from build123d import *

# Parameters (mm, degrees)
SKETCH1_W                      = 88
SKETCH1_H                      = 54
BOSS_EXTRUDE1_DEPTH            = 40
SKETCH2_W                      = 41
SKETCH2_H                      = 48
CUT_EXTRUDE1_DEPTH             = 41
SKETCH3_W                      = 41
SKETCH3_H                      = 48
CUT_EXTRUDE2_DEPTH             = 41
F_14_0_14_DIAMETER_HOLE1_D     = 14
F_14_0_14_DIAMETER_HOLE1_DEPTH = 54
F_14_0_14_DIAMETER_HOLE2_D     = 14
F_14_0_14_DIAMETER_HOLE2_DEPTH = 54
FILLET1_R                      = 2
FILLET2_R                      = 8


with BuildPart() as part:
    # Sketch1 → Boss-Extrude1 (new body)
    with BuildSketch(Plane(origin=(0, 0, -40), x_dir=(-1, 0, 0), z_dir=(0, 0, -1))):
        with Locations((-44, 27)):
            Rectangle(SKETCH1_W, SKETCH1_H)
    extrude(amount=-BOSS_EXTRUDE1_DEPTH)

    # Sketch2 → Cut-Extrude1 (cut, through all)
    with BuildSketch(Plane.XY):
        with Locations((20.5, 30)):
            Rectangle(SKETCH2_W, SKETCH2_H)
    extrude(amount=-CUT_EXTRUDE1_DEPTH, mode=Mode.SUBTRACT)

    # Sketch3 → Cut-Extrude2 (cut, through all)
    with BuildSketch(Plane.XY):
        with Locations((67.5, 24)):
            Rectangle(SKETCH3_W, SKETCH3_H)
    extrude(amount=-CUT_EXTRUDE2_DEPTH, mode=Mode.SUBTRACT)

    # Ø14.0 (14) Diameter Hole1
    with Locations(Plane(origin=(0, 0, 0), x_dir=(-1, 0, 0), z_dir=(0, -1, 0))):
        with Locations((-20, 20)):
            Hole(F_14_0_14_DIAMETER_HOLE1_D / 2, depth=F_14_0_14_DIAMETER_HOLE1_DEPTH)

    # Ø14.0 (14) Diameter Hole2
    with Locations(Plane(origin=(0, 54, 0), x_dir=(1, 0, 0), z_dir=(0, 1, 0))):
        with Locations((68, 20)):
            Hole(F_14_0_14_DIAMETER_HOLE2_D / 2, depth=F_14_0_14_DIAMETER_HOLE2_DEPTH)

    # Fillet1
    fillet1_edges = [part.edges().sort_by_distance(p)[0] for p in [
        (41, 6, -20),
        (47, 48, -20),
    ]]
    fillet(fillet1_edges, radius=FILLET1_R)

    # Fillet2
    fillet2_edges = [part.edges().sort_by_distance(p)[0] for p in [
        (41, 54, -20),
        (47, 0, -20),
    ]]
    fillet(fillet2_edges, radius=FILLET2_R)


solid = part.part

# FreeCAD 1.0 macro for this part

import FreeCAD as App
import Part
import Sketcher
Q = App.Units.Quantity


def edges_at(feature, points):
    """Names of the edges that pass closest to the given points."""
    edges = feature.Shape.Edges
    near = lambda p: min(range(len(edges)), key=lambda i: edges[i].distToShape(Part.Vertex(*p))[0])
    return sorted({f"Edge{near(p) + 1}" for p in points})

doc = App.newDocument("Part")
params = doc.addObject("Spreadsheet::Sheet", "Params")
for row, (alias, value) in enumerate([
    ("sketch1_width", "88 mm"),
    ("sketch1_height", "54 mm"),
    ("pad1_length", "40 mm"),
    ("sketch2_width", "41 mm"),
    ("sketch2_height", "48 mm"),
    ("sketch3_width", "41 mm"),
    ("sketch3_height", "48 mm"),
    ("sketch4_diameter", "14 mm"),
    ("hole_diameter", "14 mm"),
    ("hole_depth", "54 mm"),
    ("sketch5_diameter", "14 mm"),
    ("hole2_diameter", "14 mm"),
    ("hole2_depth", "54 mm"),
    ("fillet_radius", "2 mm"),
    ("fillet2_radius", "8 mm"),
], start=1):
    params.set(f"A{row}", alias)
    params.set(f"B{row}", "=" + value)
    params.setAlias(f"B{row}", alias)

body = doc.addObject("PartDesign::Body", "Body")

sketch1 = doc.addObject("Sketcher::SketchObject", "Sketch")
body.addObject(sketch1)
sketch1.AttachmentSupport = (doc.XY_Plane, [""])
sketch1.MapMode = "FlatFace"
sketch1.AttachmentOffset = App.Placement(App.Vector(0, 0, -40), App.Rotation())
sketch1.addGeometry([
    Part.LineSegment(App.Vector(88, 54, 0), App.Vector(88, 0, 0)),
    Part.LineSegment(App.Vector(88, 0, 0), App.Vector(0, 0, 0)),
    Part.LineSegment(App.Vector(0, 0, 0), App.Vector(0, 54, 0)),
    Part.LineSegment(App.Vector(0, 54, 0), App.Vector(88, 54, 0)),
], False)
sketch1.addConstraint([
    Sketcher.Constraint("Coincident", 0, 2, 1, 1),
    Sketcher.Constraint("Coincident", 1, 2, 2, 1),
    Sketcher.Constraint("Coincident", 2, 2, 3, 1),
    Sketcher.Constraint("Coincident", 3, 2, 0, 1),
    Sketcher.Constraint("Vertical", 0),
    Sketcher.Constraint("Horizontal", 1),
    Sketcher.Constraint("Vertical", 2),
    Sketcher.Constraint("Horizontal", 3),
    Sketcher.Constraint("Coincident", 1, 2, -1, 1),
    Sketcher.Constraint("DistanceX", 1, 2, 1, 1, Q("88 mm")),
    Sketcher.Constraint("DistanceY", 0, 2, 0, 1, Q("54 mm")),
])
sketch1.setExpression("Constraints[9]", "Params.sketch1_width")
sketch1.setExpression("Constraints[10]", "Params.sketch1_height")
pad1 = doc.addObject("PartDesign::Pad", "Pad")
body.addObject(pad1)
pad1.Profile = sketch1
pad1.setExpression("Length", "Params.pad1_length")

sketch2 = doc.addObject("Sketcher::SketchObject", "Sketch001")
body.addObject(sketch2)
sketch2.AttachmentSupport = (doc.XY_Plane, [""])
sketch2.MapMode = "FlatFace"
sketch2.addGeometry([
    Part.LineSegment(App.Vector(0, 54, 0), App.Vector(0, 6, 0)),
    Part.LineSegment(App.Vector(0, 6, 0), App.Vector(41, 6, 0)),
    Part.LineSegment(App.Vector(41, 6, 0), App.Vector(41, 54, 0)),
    Part.LineSegment(App.Vector(41, 54, 0), App.Vector(0, 54, 0)),
], False)
sketch2.addConstraint([
    Sketcher.Constraint("Coincident", 0, 2, 1, 1),
    Sketcher.Constraint("Coincident", 1, 2, 2, 1),
    Sketcher.Constraint("Coincident", 2, 2, 3, 1),
    Sketcher.Constraint("Coincident", 3, 2, 0, 1),
    Sketcher.Constraint("Vertical", 0),
    Sketcher.Constraint("Horizontal", 1),
    Sketcher.Constraint("Vertical", 2),
    Sketcher.Constraint("Horizontal", 3),
    Sketcher.Constraint("PointOnObject", 0, 2, -2),
    Sketcher.Constraint("DistanceX", 1, 1, 1, 2, Q("41 mm")),
    Sketcher.Constraint("DistanceY", 0, 2, 0, 1, Q("48 mm")),
    Sketcher.Constraint("DistanceY", -1, 1, 0, 2, Q("6 mm")),
])
sketch2.setExpression("Constraints[9]", "Params.sketch2_width")
sketch2.setExpression("Constraints[10]", "Params.sketch2_height")
pocket1 = doc.addObject("PartDesign::Pocket", "Pocket")
body.addObject(pocket1)
pocket1.Profile = sketch2
pocket1.Type = "ThroughAll"

sketch3 = doc.addObject("Sketcher::SketchObject", "Sketch002")
body.addObject(sketch3)
sketch3.AttachmentSupport = (doc.XY_Plane, [""])
sketch3.MapMode = "FlatFace"
sketch3.addGeometry([
    Part.LineSegment(App.Vector(47, 48, 0), App.Vector(47, 0, 0)),
    Part.LineSegment(App.Vector(47, 0, 0), App.Vector(88, 0, 0)),
    Part.LineSegment(App.Vector(88, 0, 0), App.Vector(88, 48, 0)),
    Part.LineSegment(App.Vector(88, 48, 0), App.Vector(47, 48, 0)),
], False)
sketch3.addConstraint([
    Sketcher.Constraint("Coincident", 0, 2, 1, 1),
    Sketcher.Constraint("Coincident", 1, 2, 2, 1),
    Sketcher.Constraint("Coincident", 2, 2, 3, 1),
    Sketcher.Constraint("Coincident", 3, 2, 0, 1),
    Sketcher.Constraint("Vertical", 0),
    Sketcher.Constraint("Horizontal", 1),
    Sketcher.Constraint("Vertical", 2),
    Sketcher.Constraint("Horizontal", 3),
    Sketcher.Constraint("PointOnObject", 0, 2, -1),
    Sketcher.Constraint("DistanceX", 1, 1, 1, 2, Q("41 mm")),
    Sketcher.Constraint("DistanceY", 0, 2, 0, 1, Q("48 mm")),
    Sketcher.Constraint("DistanceX", -1, 1, 0, 2, Q("47 mm")),
])
sketch3.setExpression("Constraints[9]", "Params.sketch3_width")
sketch3.setExpression("Constraints[10]", "Params.sketch3_height")
pocket2 = doc.addObject("PartDesign::Pocket", "Pocket001")
body.addObject(pocket2)
pocket2.Profile = sketch3
pocket2.Type = "ThroughAll"

sketch4 = doc.addObject("Sketcher::SketchObject", "Sketch003")
body.addObject(sketch4)
sketch4.AttachmentSupport = (doc.XZ_Plane, [""])
sketch4.MapMode = "FlatFace"
sketch4.addGeometry(Part.Circle(App.Vector(20, -20, 0), App.Vector(0, 0, 1), 7), False)
sketch4.addConstraint([
    Sketcher.Constraint("Diameter", 0, Q("14 mm")),
    Sketcher.Constraint("DistanceX", -1, 1, 0, 3, Q("20 mm")),
    Sketcher.Constraint("DistanceY", 0, 3, -1, 1, Q("20 mm")),
])
sketch4.setExpression("Constraints[0]", "Params.sketch4_diameter")
doc.recompute()
hole = doc.addObject("PartDesign::Hole", "Hole")
body.addObject(hole)
hole.Profile = sketch4
hole.ThreadType = "None"
hole.setExpression("Diameter", "Params.hole_diameter")
hole.DepthType = "Dimension"
hole.setExpression("Depth", "Params.hole_depth")
hole.DrillPoint = "Flat"

sketch5 = doc.addObject("Sketcher::SketchObject", "Sketch004")
body.addObject(sketch5)
sketch5.AttachmentSupport = (doc.XZ_Plane, [""])
sketch5.MapMode = "FlatFace"
sketch5.AttachmentOffset = App.Placement(App.Vector(0, 0, -54), App.Rotation())
sketch5.addGeometry(Part.Circle(App.Vector(68, -20, 0), App.Vector(0, 0, 1), 7), False)
sketch5.addConstraint([
    Sketcher.Constraint("Diameter", 0, Q("14 mm")),
    Sketcher.Constraint("DistanceX", -1, 1, 0, 3, Q("68 mm")),
    Sketcher.Constraint("DistanceY", 0, 3, -1, 1, Q("20 mm")),
])
sketch5.setExpression("Constraints[0]", "Params.sketch5_diameter")
doc.recompute()
hole2 = doc.addObject("PartDesign::Hole", "Hole001")
body.addObject(hole2)
hole2.Profile = sketch5
hole2.ThreadType = "None"
hole2.setExpression("Diameter", "Params.hole2_diameter")
hole2.DepthType = "Dimension"
hole2.setExpression("Depth", "Params.hole2_depth")
hole2.DrillPoint = "Flat"
hole2.Reversed = True
doc.recompute()

fillet = doc.addObject("PartDesign::Fillet", "Fillet")
body.addObject(fillet)
fillet.Base = (hole2, edges_at(hole2, [(41, 6, -20), (47, 48, -20)]))
fillet.setExpression("Radius", "Params.fillet_radius")
doc.recompute()

fillet2 = doc.addObject("PartDesign::Fillet", "Fillet001")
body.addObject(fillet2)
fillet2.Base = (fillet, edges_at(fillet, [(41, 54, -20), (47, 0, -20)]))
fillet2.setExpression("Radius", "Params.fillet2_radius")

doc.recompute()
